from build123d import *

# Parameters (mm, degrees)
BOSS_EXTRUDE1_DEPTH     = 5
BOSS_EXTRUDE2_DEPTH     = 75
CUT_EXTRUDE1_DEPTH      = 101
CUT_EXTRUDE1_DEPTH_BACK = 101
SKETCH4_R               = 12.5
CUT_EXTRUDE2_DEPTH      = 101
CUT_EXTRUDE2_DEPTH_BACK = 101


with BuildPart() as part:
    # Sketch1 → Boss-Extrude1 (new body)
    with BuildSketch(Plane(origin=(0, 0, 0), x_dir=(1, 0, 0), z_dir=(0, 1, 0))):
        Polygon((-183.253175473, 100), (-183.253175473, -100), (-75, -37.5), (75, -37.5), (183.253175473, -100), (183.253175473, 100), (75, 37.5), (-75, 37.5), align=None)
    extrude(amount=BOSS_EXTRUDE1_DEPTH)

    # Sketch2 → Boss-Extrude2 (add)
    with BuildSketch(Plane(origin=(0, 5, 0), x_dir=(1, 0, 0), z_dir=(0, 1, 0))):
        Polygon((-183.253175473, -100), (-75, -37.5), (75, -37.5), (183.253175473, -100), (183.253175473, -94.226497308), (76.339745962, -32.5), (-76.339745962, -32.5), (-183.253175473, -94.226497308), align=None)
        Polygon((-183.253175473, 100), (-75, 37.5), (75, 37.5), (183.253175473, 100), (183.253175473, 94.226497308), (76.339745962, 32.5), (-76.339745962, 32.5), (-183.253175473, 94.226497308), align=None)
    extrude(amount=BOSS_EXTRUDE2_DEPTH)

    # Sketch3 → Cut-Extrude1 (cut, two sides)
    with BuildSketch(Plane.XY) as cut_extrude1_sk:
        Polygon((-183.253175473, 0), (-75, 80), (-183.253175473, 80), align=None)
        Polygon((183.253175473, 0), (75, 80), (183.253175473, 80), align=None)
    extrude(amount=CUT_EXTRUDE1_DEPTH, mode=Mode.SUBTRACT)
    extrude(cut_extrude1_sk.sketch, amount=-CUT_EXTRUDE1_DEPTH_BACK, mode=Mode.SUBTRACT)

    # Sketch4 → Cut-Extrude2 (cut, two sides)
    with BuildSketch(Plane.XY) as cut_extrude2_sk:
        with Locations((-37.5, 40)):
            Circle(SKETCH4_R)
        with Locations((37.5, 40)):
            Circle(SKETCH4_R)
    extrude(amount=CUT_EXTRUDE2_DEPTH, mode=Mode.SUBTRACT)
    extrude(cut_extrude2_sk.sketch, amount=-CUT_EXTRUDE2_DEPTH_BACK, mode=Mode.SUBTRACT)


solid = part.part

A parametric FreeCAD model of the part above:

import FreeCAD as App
import Part
import Sketcher

V = App.Vector
Q = App.Units.Quantity


def add_polygon(sketch, points):
    """Adds a closed chain of lines whose ends are joined by coincident constraints."""
    first, n = sketch.GeometryCount, len(points)
    for a, b in zip(points, points[1:] + points[:1]):
        sketch.addGeometry(Part.LineSegment(App.Vector(*a, 0), App.Vector(*b, 0)), False)
    for i in range(n):
        sketch.addConstraint(Sketcher.Constraint("Coincident", first + i, 2, first + (i + 1) % n, 1))

doc = App.newDocument("Part")
params = doc.addObject("Spreadsheet::Sheet", "Params")
for row, (alias, value) in enumerate([
    ("sketch1_width", "150 mm"),
    ("sketch1_height", "200 mm"),
    ("sketch1_length", "125 mm"),
    ("pad1_length", "5 mm"),
    ("sketch2_width", "150 mm"),
    ("sketch2_length", "125 mm"),
    ("pad2_length", "75 mm"),
    ("sketch3_height", "80 mm"),
    ("sketch4_diameter", "25 mm"),
], start=1):
    params.set(f"A{row}", alias)
    params.set(f"B{row}", "=" + value)
    params.setAlias(f"B{row}", alias)

body = doc.addObject("PartDesign::Body", "Body")

# Sketch on XZ plane
sketch1 = body.newObject("Sketcher::SketchObject", "Sketch")
sketch1.AttachmentSupport = (doc.getObject("XZ_Plane"), [""])
sketch1.MapMode = "FlatFace"
add_polygon(sketch1, [(-183.253175, -100), (-183.253175, 100), (-75, 37.5), (75, 37.5), (183.253175, 100), (183.253175, -100), (75, -37.5), (-75, -37.5)])  # lines 0-7
sketch1.addConstraint([
    Sketcher.Constraint("Vertical", 0),
    Sketcher.Constraint("Horizontal", 2),
    Sketcher.Constraint("Vertical", 4),
    Sketcher.Constraint("Horizontal", 6),
    Sketcher.Constraint("Symmetric", 0, 2, 4, 2, -1, 1),
    Sketcher.Constraint("Symmetric", 1, 2, 5, 2, -1, 1),
    Sketcher.Constraint("Parallel", 3, 7),
    Sketcher.Constraint("Horizontal", 0, 2, 3, 2),
    Sketcher.Constraint("Horizontal", 4, 2, 7, 2),
    Sketcher.Constraint("Vertical", 2, 2, 5, 2),
    Sketcher.Constraint("DistanceX", 2, 1, 2, 2, 150.0),
    Sketcher.Constraint("DistanceY", 0, 1, 0, 2, 200.0),
    Sketcher.Constraint("Angle", 1, Q("-30 deg")),
    Sketcher.Constraint("Distance", 1, 125.0),
])
sketch1.setExpression("Constraints[18]", "Params.sketch1_width")
sketch1.setExpression("Constraints[19]", "Params.sketch1_height")
sketch1.setExpression("Constraints[21]", "Params.sketch1_length")
pad1 = body.newObject("PartDesign::Pad", "Pad")
pad1.Profile = sketch1
pad1.setExpression("Length", "Params.pad1_length")
pad1.Reversed = True

# Sketch on XZ plane
sketch2 = body.newObject("Sketcher::SketchObject", "Sketch001")
sketch2.AttachmentSupport = (doc.getObject("XZ_Plane"), [""])
sketch2.MapMode = "FlatFace"
sketch2.AttachmentOffset = App.Placement(V(0, 0, -5), App.Rotation())
add_polygon(sketch2, [(-183.253175, 100), (-75, 37.5), (75, 37.5), (183.253175, 100), (183.253175, 94.226497), (76.339746, 32.5), (-76.339746, 32.5), (-183.253175, 94.226497)])  # lines 0-7
add_polygon(sketch2, [(-75, -37.5), (-183.253175, -100), (-183.253175, -94.226497), (-76.339746, -32.5), (76.339746, -32.5), (183.253175, -94.226497), (183.253175, -100), (75, -37.5)])  # lines 8-15
sketch2.addConstraint([
    Sketcher.Constraint("Horizontal", 1),
    Sketcher.Constraint("Vertical", 3),
    Sketcher.Constraint("Horizontal", 5),
    Sketcher.Constraint("Vertical", 7),
    Sketcher.Constraint("Vertical", 9),
    Sketcher.Constraint("Horizontal", 11),
    Sketcher.Constraint("Vertical", 13),
    Sketcher.Constraint("Horizontal", 15),
    Sketcher.Constraint("Symmetric", 2, 2, 8, 2, -1, 1),
    Sketcher.Constraint("Symmetric", 4, 2, 10, 2, -1, 1),
    Sketcher.Constraint("Symmetric", 6, 2, 12, 2, -1, 1),
    Sketcher.Constraint("Symmetric", 0, 2, 14, 2, -1, 1),
    Sketcher.Constraint("Symmetric", 3, 2, 6, 2, -2),
    Sketcher.Constraint("Parallel", 2, 4),
    Sketcher.Constraint("Parallel", 0, 6),
    Sketcher.Constraint("Parallel", 4, 8),
    Sketcher.Constraint("Parallel", 8, 10),
    Sketcher.Constraint("Parallel", 6, 12),
    Sketcher.Constraint("Parallel", 12, 14),
    Sketcher.Constraint("Horizontal", 2, 2, 7, 2),
    Sketcher.Constraint("Vertical", 5, 2, 10, 2),
    Sketcher.Constraint("DistanceX", 1, 1, 1, 2, 150.0),
    Sketcher.Constraint("Angle", 0, Q("-30 deg")),
    Sketcher.Constraint("Distance", 0, 125.0),
    Sketcher.Constraint("DistanceY", -1, 1, 2, 2, 100.0),
    Sketcher.Constraint("DistanceY", 4, 2, 1, 2, 5.0),
    Sketcher.Constraint("DistanceX", 5, 2, 5, 1, 152.679492),
])
sketch2.setExpression("Constraints[37]", "Params.sketch2_width")
sketch2.setExpression("Constraints[39]", "Params.sketch2_length")
pad2 = body.newObject("PartDesign::Pad", "Pad001")
pad2.Profile = sketch2
pad2.setExpression("Length", "Params.pad2_length")
pad2.Reversed = True

# Sketch on XY plane
sketch3 = body.newObject("Sketcher::SketchObject", "Sketch002")
sketch3.AttachmentSupport = (doc.getObject("XY_Plane"), [""])
sketch3.MapMode = "FlatFace"
add_polygon(sketch3, [(-183.253175, 0), (-75, 80), (-183.253175, 80)])  # lines 0-2
add_polygon(sketch3, [(75, 80), (183.253175, 0), (183.253175, 80)])  # lines 3-5
sketch3.addConstraint([
    Sketcher.Constraint("Horizontal", 1),
    Sketcher.Constraint("Vertical", 2),
    Sketcher.Constraint("Vertical", 4),
    Sketcher.Constraint("Horizontal", 5),
    Sketcher.Constraint("Symmetric", 2, 2, 3, 2, -1, 1),
    Sketcher.Constraint("Symmetric", 0, 2, 5, 2, -2),
    Sketcher.Constraint("PointOnObject", 2, 2, -1),
    Sketcher.Constraint("DistanceY", 2, 2, 2, 1, 80.0),
    Sketcher.Constraint("DistanceX", 0, 2, -1, 1, 75.0),
    Sketcher.Constraint("DistanceX", 1, 2, 1, 1, 108.253175),
])
sketch3.setExpression("Constraints[13]", "Params.sketch3_height")
pocket1 = body.newObject("PartDesign::Pocket", "Pocket")
pocket1.Profile = sketch3
pocket1.Type = "ThroughAll"
pocket1.Midplane = True

# Sketch on XY plane
sketch4 = body.newObject("Sketcher::SketchObject", "Sketch003")
sketch4.AttachmentSupport = (doc.getObject("XY_Plane"), [""])
sketch4.MapMode = "FlatFace"
sketch4.addGeometry([
    Part.Circle(V(-37.5, 40, 0), V(0, 0, 1), 12.5),
    Part.Circle(V(37.5, 40, 0), V(0, 0, 1), 12.5),
], False)
sketch4.addConstraint([
    Sketcher.Constraint("Equal", 0, 1),
    Sketcher.Constraint("Symmetric", 0, 3, 1, 3, -2),
    Sketcher.Constraint("Diameter", 0, 25.0),
    Sketcher.Constraint("DistanceY", -1, 1, 0, 3, 40.0),
    Sketcher.Constraint("DistanceX", 0, 3, 1, 3, 75.0),
])
sketch4.setExpression("Constraints[2]", "Params.sketch4_diameter")
pocket2 = body.newObject("PartDesign::Pocket", "Pocket001")
pocket2.Profile = sketch4
pocket2.Type = "ThroughAll"
pocket2.Midplane = True

doc.recompute()
